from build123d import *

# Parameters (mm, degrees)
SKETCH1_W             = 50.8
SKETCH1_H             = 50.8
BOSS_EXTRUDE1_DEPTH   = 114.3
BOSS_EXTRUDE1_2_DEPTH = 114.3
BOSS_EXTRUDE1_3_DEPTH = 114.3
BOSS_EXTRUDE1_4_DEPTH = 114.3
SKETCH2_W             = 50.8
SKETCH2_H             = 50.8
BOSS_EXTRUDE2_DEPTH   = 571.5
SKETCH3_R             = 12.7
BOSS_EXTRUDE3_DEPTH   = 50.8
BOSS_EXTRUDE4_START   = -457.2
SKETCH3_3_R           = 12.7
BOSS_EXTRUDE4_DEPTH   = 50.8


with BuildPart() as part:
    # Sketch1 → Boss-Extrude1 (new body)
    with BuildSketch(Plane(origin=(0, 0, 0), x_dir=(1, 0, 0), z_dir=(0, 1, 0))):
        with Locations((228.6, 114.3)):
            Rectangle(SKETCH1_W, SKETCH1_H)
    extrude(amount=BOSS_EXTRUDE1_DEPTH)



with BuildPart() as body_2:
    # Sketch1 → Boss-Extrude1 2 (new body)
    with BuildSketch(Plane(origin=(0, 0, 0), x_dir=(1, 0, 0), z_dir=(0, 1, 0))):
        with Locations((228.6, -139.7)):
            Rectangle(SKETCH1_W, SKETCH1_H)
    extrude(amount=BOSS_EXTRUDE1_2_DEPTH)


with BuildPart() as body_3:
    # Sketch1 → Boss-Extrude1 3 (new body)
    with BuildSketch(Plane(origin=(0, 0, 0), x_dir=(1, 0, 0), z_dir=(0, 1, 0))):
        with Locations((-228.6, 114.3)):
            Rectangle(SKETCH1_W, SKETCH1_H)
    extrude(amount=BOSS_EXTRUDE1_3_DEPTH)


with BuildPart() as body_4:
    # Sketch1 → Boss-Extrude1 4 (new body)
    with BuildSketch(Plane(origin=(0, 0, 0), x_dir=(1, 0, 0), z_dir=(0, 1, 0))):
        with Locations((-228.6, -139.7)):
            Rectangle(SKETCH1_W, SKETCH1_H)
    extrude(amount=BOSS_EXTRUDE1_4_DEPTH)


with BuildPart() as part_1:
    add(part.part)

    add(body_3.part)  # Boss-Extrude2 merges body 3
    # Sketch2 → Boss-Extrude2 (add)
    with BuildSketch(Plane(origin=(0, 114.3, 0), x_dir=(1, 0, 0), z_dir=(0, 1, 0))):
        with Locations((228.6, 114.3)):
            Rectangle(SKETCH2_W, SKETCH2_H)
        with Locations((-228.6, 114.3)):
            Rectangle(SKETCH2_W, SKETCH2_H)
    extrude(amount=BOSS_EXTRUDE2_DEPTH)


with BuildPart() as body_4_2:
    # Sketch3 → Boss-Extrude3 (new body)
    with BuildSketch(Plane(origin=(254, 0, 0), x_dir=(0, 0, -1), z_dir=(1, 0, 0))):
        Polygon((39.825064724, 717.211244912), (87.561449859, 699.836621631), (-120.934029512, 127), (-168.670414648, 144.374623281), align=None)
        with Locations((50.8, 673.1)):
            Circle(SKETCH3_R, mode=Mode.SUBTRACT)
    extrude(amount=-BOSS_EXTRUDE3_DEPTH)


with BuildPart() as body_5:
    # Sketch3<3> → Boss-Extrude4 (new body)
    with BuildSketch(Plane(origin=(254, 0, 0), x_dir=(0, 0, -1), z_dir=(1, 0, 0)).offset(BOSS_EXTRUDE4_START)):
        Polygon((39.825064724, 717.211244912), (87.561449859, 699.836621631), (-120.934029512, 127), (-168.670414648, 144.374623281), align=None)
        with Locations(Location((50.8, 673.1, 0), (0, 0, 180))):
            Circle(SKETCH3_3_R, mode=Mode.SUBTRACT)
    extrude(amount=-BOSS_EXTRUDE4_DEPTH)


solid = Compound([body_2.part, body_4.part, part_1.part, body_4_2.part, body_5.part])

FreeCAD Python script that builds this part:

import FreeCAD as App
import Part
import Sketcher
from FreeCAD import Vector
Q = App.Units.Quantity

doc = App.newDocument("Part")
body = doc.addObject("PartDesign::Body", "Body")

sketch1 = body.newObject("Sketcher::SketchObject", "Sketch")
sketch1.AttachmentSupport = (doc.getObject("XZ_Plane"), [""])
sketch1.MapMode = "FlatFace"
sketch1.addGeometry(Part.LineSegment(Vector(203.2, -139.7, 0), Vector(203.2, -88.9, 0)), False)
sketch1.addGeometry(Part.LineSegment(Vector(203.2, -88.9, 0), Vector(254, -88.9, 0)), False)
sketch1.addGeometry(Part.LineSegment(Vector(254, -88.9, 0), Vector(254, -139.7, 0)), False)
sketch1.addGeometry(Part.LineSegment(Vector(254, -139.7, 0), Vector(203.2, -139.7, 0)), False)
sketch1.addConstraint(Sketcher.Constraint("Coincident", 0, 2, 1, 1))
sketch1.addConstraint(Sketcher.Constraint("Coincident", 1, 2, 2, 1))
sketch1.addConstraint(Sketcher.Constraint("Coincident", 2, 2, 3, 1))
sketch1.addConstraint(Sketcher.Constraint("Coincident", 3, 2, 0, 1))
sketch1.addConstraint(Sketcher.Constraint("Vertical", 0))
sketch1.addConstraint(Sketcher.Constraint("Horizontal", 1))
sketch1.addConstraint(Sketcher.Constraint("Vertical", 2))
sketch1.addConstraint(Sketcher.Constraint("Horizontal", 3))
sketch1.addConstraint(Sketcher.Constraint("Equal", 3, 0))
sketch1.addConstraint(Sketcher.Constraint("DistanceX", 1, 1, 1, 2, Q("2 in")))
sketch1.addConstraint(Sketcher.Constraint("DistanceX", -1, 1, 0, 2, Q("8 in")))
sketch1.addConstraint(Sketcher.Constraint("DistanceY", 0, 2, -1, 1, Q("3.5 in")))
pad1 = body.newObject("PartDesign::Pad", "Pad")
pad1.Profile = sketch1
pad1.Length = Q("4.5 in")
pad1.Reversed = True
body2 = doc.addObject("PartDesign::Body", "Body001")

sketch2 = body2.newObject("Sketcher::SketchObject", "Sketch001")
sketch2.AttachmentSupport = (doc.getObject("XZ_Plane001"), [""])
sketch2.MapMode = "FlatFace"
sketch2.addGeometry(Part.LineSegment(Vector(203.2, 114.3, 0), Vector(203.2, 165.1, 0)), False)
sketch2.addGeometry(Part.LineSegment(Vector(203.2, 165.1, 0), Vector(254, 165.1, 0)), False)
sketch2.addGeometry(Part.LineSegment(Vector(254, 165.1, 0), Vector(254, 114.3, 0)), False)
sketch2.addGeometry(Part.LineSegment(Vector(254, 114.3, 0), Vector(203.2, 114.3, 0)), False)
sketch2.addConstraint(Sketcher.Constraint("Coincident", 0, 2, 1, 1))
sketch2.addConstraint(Sketcher.Constraint("Coincident", 1, 2, 2, 1))
sketch2.addConstraint(Sketcher.Constraint("Coincident", 2, 2, 3, 1))
sketch2.addConstraint(Sketcher.Constraint("Coincident", 3, 2, 0, 1))
sketch2.addConstraint(Sketcher.Constraint("Vertical", 0))
sketch2.addConstraint(Sketcher.Constraint("Horizontal", 1))
sketch2.addConstraint(Sketcher.Constraint("Vertical", 2))
sketch2.addConstraint(Sketcher.Constraint("Horizontal", 3))
sketch2.addConstraint(Sketcher.Constraint("Equal", 3, 0))
sketch2.addConstraint(Sketcher.Constraint("DistanceX", 1, 1, 1, 2, Q("2 in")))
sketch2.addConstraint(Sketcher.Constraint("DistanceX", -1, 1, 0, 2, Q("8 in")))
sketch2.addConstraint(Sketcher.Constraint("DistanceY", -1, 1, 0, 2, Q("6.5 in")))
pad2 = body2.newObject("PartDesign::Pad", "Pad001")
pad2.Profile = sketch2
pad2.Length = Q("4.5 in")
pad2.Reversed = True
body3 = doc.addObject("PartDesign::Body", "Body002")

sketch3 = body3.newObject("Sketcher::SketchObject", "Sketch002")
sketch3.AttachmentSupport = (doc.getObject("XZ_Plane002"), [""])
sketch3.MapMode = "FlatFace"
sketch3.addGeometry(Part.LineSegment(Vector(-254, -139.7, 0), Vector(-254, -88.9, 0)), False)
sketch3.addGeometry(Part.LineSegment(Vector(-254, -88.9, 0), Vector(-203.2, -88.9, 0)), False)
sketch3.addGeometry(Part.LineSegment(Vector(-203.2, -88.9, 0), Vector(-203.2, -139.7, 0)), False)
sketch3.addGeometry(Part.LineSegment(Vector(-203.2, -139.7, 0), Vector(-254, -139.7, 0)), False)
sketch3.addConstraint(Sketcher.Constraint("Coincident", 0, 2, 1, 1))
sketch3.addConstraint(Sketcher.Constraint("Coincident", 1, 2, 2, 1))
sketch3.addConstraint(Sketcher.Constraint("Coincident", 2, 2, 3, 1))
sketch3.addConstraint(Sketcher.Constraint("Coincident", 3, 2, 0, 1))
sketch3.addConstraint(Sketcher.Constraint("Vertical", 0))
sketch3.addConstraint(Sketcher.Constraint("Horizontal", 1))
sketch3.addConstraint(Sketcher.Constraint("Vertical", 2))
sketch3.addConstraint(Sketcher.Constraint("Horizontal", 3))
sketch3.addConstraint(Sketcher.Constraint("Equal", 3, 0))
sketch3.addConstraint(Sketcher.Constraint("DistanceX", 1, 1, 1, 2, Q("2 in")))
sketch3.addConstraint(Sketcher.Constraint("DistanceX", 0, 2, -1, 1, Q("10 in")))
sketch3.addConstraint(Sketcher.Constraint("DistanceY", 0, 2, -1, 1, Q("3.5 in")))
pad3 = body3.newObject("PartDesign::Pad", "Pad002")
pad3.Profile = sketch3
pad3.Length = Q("4.5 in")
pad3.Reversed = True
body4 = doc.addObject("PartDesign::Body", "Body003")

sketch4 = body4.newObject("Sketcher::SketchObject", "Sketch003")
sketch4.AttachmentSupport = (doc.getObject("XZ_Plane003"), [""])
sketch4.MapMode = "FlatFace"
sketch4.addGeometry(Part.LineSegment(Vector(-254, 114.3, 0), Vector(-254, 165.1, 0)), False)
sketch4.addGeometry(Part.LineSegment(Vector(-254, 165.1, 0), Vector(-203.2, 165.1, 0)), False)
sketch4.addGeometry(Part.LineSegment(Vector(-203.2, 165.1, 0), Vector(-203.2, 114.3, 0)), False)
sketch4.addGeometry(Part.LineSegment(Vector(-203.2, 114.3, 0), Vector(-254, 114.3, 0)), False)
sketch4.addConstraint(Sketcher.Constraint("Coincident", 0, 2, 1, 1))
sketch4.addConstraint(Sketcher.Constraint("Coincident", 1, 2, 2, 1))
sketch4.addConstraint(Sketcher.Constraint("Coincident", 2, 2, 3, 1))
sketch4.addConstraint(Sketcher.Constraint("Coincident", 3, 2, 0, 1))
sketch4.addConstraint(Sketcher.Constraint("Vertical", 0))
sketch4.addConstraint(Sketcher.Constraint("Horizontal", 1))
sketch4.addConstraint(Sketcher.Constraint("Vertical", 2))
sketch4.addConstraint(Sketcher.Constraint("Horizontal", 3))
sketch4.addConstraint(Sketcher.Constraint("Equal", 3, 0))
sketch4.addConstraint(Sketcher.Constraint("DistanceX", 1, 1, 1, 2, Q("2 in")))
sketch4.addConstraint(Sketcher.Constraint("DistanceX", 0, 2, -1, 1, Q("10 in")))
sketch4.addConstraint(Sketcher.Constraint("DistanceY", -1, 1, 0, 2, Q("6.5 in")))
pad4 = body4.newObject("PartDesign::Pad", "Pad003")
pad4.Profile = sketch4
pad4.Length = Q("4.5 in")
pad4.Reversed = True
body.AllowCompound = True
doc.recompute()

boolean = body.newObject("PartDesign::Boolean", "Boolean")
boolean.Type = "Fuse"
boolean.addObjects([body3])

sketch5 = body.newObject("Sketcher::SketchObject", "Sketch004")
sketch5.AttachmentSupport = (doc.getObject("XZ_Plane"), [""])
sketch5.MapMode = "FlatFace"
sketch5.AttachmentOffset = App.Placement(Vector(0, 0, -4.5 * 25.4), App.Rotation())
sketch5.addGeometry(Part.LineSegment(Vector(203.2, -139.7, 0), Vector(203.2, -88.9, 0)), False)
sketch5.addGeometry(Part.LineSegment(Vector(203.2, -88.9, 0), Vector(254, -88.9, 0)), False)
sketch5.addGeometry(Part.LineSegment(Vector(254, -88.9, 0), Vector(254, -139.7, 0)), False)
sketch5.addGeometry(Part.LineSegment(Vector(254, -139.7, 0), Vector(203.2, -139.7, 0)), False)
sketch5.addGeometry(Part.LineSegment(Vector(-254, -139.7, 0), Vector(-254, -88.9, 0)), False)
sketch5.addGeometry(Part.LineSegment(Vector(-254, -88.9, 0), Vector(-203.2, -88.9, 0)), False)
sketch5.addGeometry(Part.LineSegment(Vector(-203.2, -88.9, 0), Vector(-203.2, -139.7, 0)), False)
sketch5.addGeometry(Part.LineSegment(Vector(-203.2, -139.7, 0), Vector(-254, -139.7, 0)), False)
sketch5.addConstraint(Sketcher.Constraint("Coincident", 0, 2, 1, 1))
sketch5.addConstraint(Sketcher.Constraint("Coincident", 1, 2, 2, 1))
sketch5.addConstraint(Sketcher.Constraint("Coincident", 2, 2, 3, 1))
sketch5.addConstraint(Sketcher.Constraint("Coincident", 3, 2, 0, 1))
sketch5.addConstraint(Sketcher.Constraint("Coincident", 4, 2, 5, 1))
sketch5.addConstraint(Sketcher.Constraint("Coincident", 5, 2, 6, 1))
sketch5.addConstraint(Sketcher.Constraint("Coincident", 6, 2, 7, 1))
sketch5.addConstraint(Sketcher.Constraint("Coincident", 7, 2, 4, 1))
sketch5.addConstraint(Sketcher.Constraint("Vertical", 0))
sketch5.addConstraint(Sketcher.Constraint("Horizontal", 1))
sketch5.addConstraint(Sketcher.Constraint("Vertical", 2))
sketch5.addConstraint(Sketcher.Constraint("Horizontal", 3))
sketch5.addConstraint(Sketcher.Constraint("Vertical", 4))
sketch5.addConstraint(Sketcher.Constraint("Horizontal", 5))
sketch5.addConstraint(Sketcher.Constraint("Vertical", 6))
sketch5.addConstraint(Sketcher.Constraint("Horizontal", 7))
sketch5.addConstraint(Sketcher.Constraint("Symmetric", 1, 2, 4, 2, -2))
sketch5.addConstraint(Sketcher.Constraint("Symmetric", 3, 2, 6, 2, -2))
sketch5.addConstraint(Sketcher.Constraint("Equal", 7, 0))
sketch5.addConstraint(Sketcher.Constraint("DistanceX", 1, 1, 1, 2, Q("2 in")))
sketch5.addConstraint(Sketcher.Constraint("DistanceX", -1, 1, 0, 2, Q("8 in")))
sketch5.addConstraint(Sketcher.Constraint("DistanceY", 0, 2, -1, 1, Q("3.5 in")))
pad5 = body.newObject("PartDesign::Pad", "Pad004")
pad5.Profile = sketch5
pad5.Length = Q("22.5 in")
pad5.Reversed = True
body5 = doc.addObject("PartDesign::Body", "Body004")

sketch6 = body5.newObject("Sketcher::SketchObject", "Sketch005")
sketch6.AttachmentSupport = (doc.getObject("YZ_Plane004"), [""])
sketch6.MapMode = "FlatFace"
sketch6.AttachmentOffset = App.Placement(Vector(0, 0, 10 * 25.4), App.Rotation())
sketch6.addGeometry(Part.LineSegment(Vector(699.836622, -87.56145, 0), Vector(717.211245, -39.825065, 0)), False)
sketch6.addGeometry(Part.LineSegment(Vector(717.211245, -39.825065, 0), Vector(144.374623, 168.670415, 0)), False)
sketch6.addGeometry(Part.LineSegment(Vector(144.374623, 168.670415, 0), Vector(127, 120.93403, 0)), False)
sketch6.addGeometry(Part.LineSegment(Vector(127, 120.93403, 0), Vector(699.836622, -87.56145, 0)), False)
sketch6.addGeometry(Part.Circle(Vector(673.1, -50.8, 0), Vector(0, 0, 1), 12.7), False)
sketch6.addConstraint(Sketcher.Constraint("Coincident", 0, 2, 1, 1))
sketch6.addConstraint(Sketcher.Constraint("Coincident", 1, 2, 2, 1))
sketch6.addConstraint(Sketcher.Constraint("Coincident", 2, 2, 3, 1))
sketch6.addConstraint(Sketcher.Constraint("Coincident", 3, 2, 0, 1))
sketch6.addConstraint(Sketcher.Constraint("Perpendicular", 0, 1))
sketch6.addConstraint(Sketcher.Constraint("Perpendicular", 1, 2))
sketch6.addConstraint(Sketcher.Constraint("Perpendicular", 2, 3))
sketch6.addConstraint(Sketcher.Constraint("Diameter", 4, Q("1 in")))
sketch6.addConstraint(Sketcher.Constraint("Distance", 0, Q("2 in")))
sketch6.addConstraint(Sketcher.Constraint("Distance", 1, Q("24 in")))
sketch6.addConstraint(Sketcher.Constraint("DistanceY", 4, 3, -1, 1, Q("2 in")))
sketch6.addConstraint(Sketcher.Constraint("DistanceX", -1, 1, 2, 2, Q("5 in")))
sketch6.addConstraint(Sketcher.Constraint("Angle", 0, Q("70 deg")))
sketch6.addConstraint(Sketcher.Constraint("DistanceX", -1, 1, 4, 3, Q("26.5 in")))
sketch6.addConstraint(Sketcher.Constraint("DistanceY", -1, 1, 2, 2, Q("120.93403 mm")))
pad6 = body5.newObject("PartDesign::Pad", "Pad005")
pad6.Profile = sketch6
pad6.Length = Q("2 in")
pad6.Reversed = True
body6 = doc.addObject("PartDesign::Body", "Body005")

sketch7 = body6.newObject("Sketcher::SketchObject", "Sketch006")
sketch7.AttachmentSupport = (doc.getObject("YZ_Plane005"), [""])
sketch7.MapMode = "FlatFace"
sketch7.AttachmentOffset = App.Placement(Vector(0, 0, -8 * 25.4), App.Rotation())
sketch7.addGeometry(Part.LineSegment(Vector(699.836622, -87.56145, 0), Vector(717.211245, -39.825065, 0)), False)
sketch7.addGeometry(Part.LineSegment(Vector(717.211245, -39.825065, 0), Vector(144.374623, 168.670415, 0)), False)
sketch7.addGeometry(Part.LineSegment(Vector(144.374623, 168.670415, 0), Vector(127, 120.93403, 0)), False)
sketch7.addGeometry(Part.LineSegment(Vector(127, 120.93403, 0), Vector(699.836622, -87.56145, 0)), False)
sketch7.addGeometry(Part.Circle(Vector(673.1, -50.8, 0), Vector(0, 0, 1), 12.7), False)
sketch7.addConstraint(Sketcher.Constraint("Coincident", 0, 2, 1, 1))
sketch7.addConstraint(Sketcher.Constraint("Coincident", 1, 2, 2, 1))
sketch7.addConstraint(Sketcher.Constraint("Coincident", 2, 2, 3, 1))
sketch7.addConstraint(Sketcher.Constraint("Coincident", 3, 2, 0, 1))
sketch7.addConstraint(Sketcher.Constraint("Perpendicular", 0, 1))
sketch7.addConstraint(Sketcher.Constraint("Perpendicular", 1, 2))
sketch7.addConstraint(Sketcher.Constraint("Perpendicular", 2, 3))
sketch7.addConstraint(Sketcher.Constraint("Diameter", 4, Q("1 in")))
sketch7.addConstraint(Sketcher.Constraint("Distance", 0, Q("2 in")))
sketch7.addConstraint(Sketcher.Constraint("Distance", 1, Q("24 in")))
sketch7.addConstraint(Sketcher.Constraint("DistanceY", 4, 3, -1, 1, Q("2 in")))
sketch7.addConstraint(Sketcher.Constraint("DistanceX", -1, 1, 2, 2, Q("5 in")))
sketch7.addConstraint(Sketcher.Constraint("Angle", 0, Q("70 deg")))
sketch7.addConstraint(Sketcher.Constraint("DistanceX", -1, 1, 4, 3, Q("26.5 in")))
sketch7.addConstraint(Sketcher.Constraint("DistanceY", -1, 1, 2, 2, Q("120.93403 mm")))
pad7 = body6.newObject("PartDesign::Pad", "Pad006")
pad7.Profile = sketch7
pad7.Length = Q("2 in")
pad7.Reversed = True

doc.recompute()
